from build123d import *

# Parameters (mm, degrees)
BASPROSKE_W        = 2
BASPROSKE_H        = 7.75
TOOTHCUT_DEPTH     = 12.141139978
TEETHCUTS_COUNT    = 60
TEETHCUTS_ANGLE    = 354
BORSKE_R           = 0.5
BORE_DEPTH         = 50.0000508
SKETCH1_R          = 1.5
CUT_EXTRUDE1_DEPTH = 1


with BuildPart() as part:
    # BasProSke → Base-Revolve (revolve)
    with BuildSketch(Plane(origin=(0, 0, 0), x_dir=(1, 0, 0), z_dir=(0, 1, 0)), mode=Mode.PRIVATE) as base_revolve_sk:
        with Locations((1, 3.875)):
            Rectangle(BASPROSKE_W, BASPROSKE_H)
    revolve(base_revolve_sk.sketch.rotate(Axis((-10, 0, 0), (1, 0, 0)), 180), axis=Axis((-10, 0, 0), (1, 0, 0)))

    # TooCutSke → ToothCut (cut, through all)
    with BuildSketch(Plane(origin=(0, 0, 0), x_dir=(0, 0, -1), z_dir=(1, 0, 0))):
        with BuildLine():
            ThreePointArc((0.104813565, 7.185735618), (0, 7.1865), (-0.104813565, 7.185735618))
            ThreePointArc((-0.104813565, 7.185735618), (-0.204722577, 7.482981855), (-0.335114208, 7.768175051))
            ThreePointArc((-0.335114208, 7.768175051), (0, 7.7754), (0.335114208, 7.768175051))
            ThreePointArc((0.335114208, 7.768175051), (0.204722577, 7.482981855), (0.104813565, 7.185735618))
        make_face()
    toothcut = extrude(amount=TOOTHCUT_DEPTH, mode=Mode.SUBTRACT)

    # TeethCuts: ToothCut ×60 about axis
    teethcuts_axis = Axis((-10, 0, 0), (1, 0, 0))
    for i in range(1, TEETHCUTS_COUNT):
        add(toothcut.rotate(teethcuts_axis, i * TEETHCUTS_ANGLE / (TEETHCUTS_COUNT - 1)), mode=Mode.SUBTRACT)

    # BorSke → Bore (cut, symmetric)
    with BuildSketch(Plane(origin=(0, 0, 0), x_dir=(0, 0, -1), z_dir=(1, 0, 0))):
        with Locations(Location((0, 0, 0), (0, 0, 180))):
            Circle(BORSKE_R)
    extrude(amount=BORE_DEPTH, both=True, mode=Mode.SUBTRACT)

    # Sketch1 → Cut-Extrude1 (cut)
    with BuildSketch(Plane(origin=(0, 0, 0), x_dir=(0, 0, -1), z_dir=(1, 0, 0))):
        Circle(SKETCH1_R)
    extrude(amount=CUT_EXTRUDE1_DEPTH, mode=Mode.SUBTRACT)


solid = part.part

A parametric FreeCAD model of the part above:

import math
import FreeCAD as App
import Part
import Sketcher
from FreeCAD import Vector
Q = App.Units.Quantity


def add_polygon(sketch, points):
    """Adds a closed chain of lines whose ends are joined by coincident constraints."""
    first, n = sketch.GeometryCount, len(points)
    for a, b in zip(points, points[1:] + points[:1]):
        sketch.addGeometry(Part.LineSegment(App.Vector(*a, 0), App.Vector(*b, 0)), False)
    for i in range(n):
        sketch.addConstraint(Sketcher.Constraint("Coincident", first + i, 2, first + (i + 1) % n, 1))

doc = App.newDocument("Part")
params = doc.addObject("Spreadsheet::Sheet", "Params")
for row, (alias, value) in enumerate([
    ("sketch1_width", "2 mm"),
    ("sketch1_height", "7.75 mm"),
    ("revolution_angle", "360 deg"),
    ("sketch2_radius", "3 mm"),
    ("sketch3_diameter", "1 mm"),
    ("pocket2_length", "100.000102 mm"),
    ("sketch4_diameter", "3 mm"),
    ("pocket3_length", "1 mm"),
], start=1):
    params.set(f"A{row}", alias)
    params.set(f"B{row}", "=" + value)
    params.setAlias(f"B{row}", alias)

body = doc.addObject("PartDesign::Body", "Body")

# Sketch on XZ plane
sketch1 = body.newObject("Sketcher::SketchObject", "Sketch")
sketch1.AttachmentSupport = (doc.getObject("XZ_Plane"), [""])
sketch1.MapMode = "FlatFace"
add_polygon(sketch1, [(0, -7.75), (0, 0), (2, 0), (2, -7.75)])  # lines 0-3
sketch1.addConstraint([
    Sketcher.Constraint("Vertical", 0),
    Sketcher.Constraint("Horizontal", 1),
    Sketcher.Constraint("Vertical", 2),
    Sketcher.Constraint("Horizontal", 3),
    Sketcher.Constraint("Coincident", 0, 2, -1, 1),
    Sketcher.Constraint("DistanceX", 1, 1, 1, 2, Q("2 mm")),
    Sketcher.Constraint("DistanceY", 0, 1, 0, 2, Q("7.75 mm")),
])
sketch1.setExpression("Constraints[9]", "Params.sketch1_width")
sketch1.setExpression("Constraints[10]", "Params.sketch1_height")
revolution = body.newObject("PartDesign::Revolution", "Revolution")
revolution.Profile = sketch1
revolution.ReferenceAxis = (sketch1, ["H_Axis"])
revolution.setExpression("Angle", "Params.revolution_angle")

# Sketch on YZ plane
sketch2 = body.newObject("Sketcher::SketchObject", "Sketch001")
sketch2.AttachmentSupport = (doc.getObject("YZ_Plane"), [""])
sketch2.MapMode = "FlatFace"
sketch2.addGeometry([
    Part.ArcOfCircle(Part.Circle(Vector(-0.000003, 0, 0), Vector(0, 0, 1), 7.186503), math.radians(-0.835676), math.radians(0.835676)),
    Part.ArcOfCircle(Part.Circle(Vector(6.379865, -2.994549, 0), Vector(0, 0, 1), 3), math.radians(62.433999), math.radians(74.41762)),
    Part.ArcOfCircle(Part.Circle(Vector(0, 0, 0), Vector(0, 0, 1), 7.7754), math.radians(-2.470173), math.radians(2.470173)),
    Part.ArcOfCircle(Part.Circle(Vector(6.379865, 2.994549, 0), Vector(0, 0, 1), 3), math.radians(-74.41762), math.radians(-62.433999)),
], False)
sketch2.addConstraint([
    Sketcher.Constraint("Coincident", 0, 1, 1, 2),
    Sketcher.Constraint("Coincident", 1, 1, 2, 1),
    Sketcher.Constraint("Coincident", 2, 2, 3, 2),
    Sketcher.Constraint("Coincident", 3, 1, 0, 2),
    Sketcher.Constraint("Coincident", 0, 3, -1, 1),
    Sketcher.Constraint("Coincident", 2, 3, -1, 1),
    Sketcher.Constraint("Equal", 1, 3),
    Sketcher.Constraint("Symmetric", 1, 3, 3, 3, -1),
    Sketcher.Constraint("Radius", 1, Q("3 mm")),
    Sketcher.Constraint("Radius", 2, Q("7.7754 mm")),
    Sketcher.Constraint("Radius", 0, Q("7.186503 mm")),
    Sketcher.Constraint("DistanceY", 1, 3, 3, 3, Q("5.989098 mm")),
    Sketcher.Constraint("DistanceY", 1, 1, 0, 1, Q("0.230301 mm")),
])
sketch2.setExpression("Constraints[8]", "Params.sketch2_radius")
pocket1 = body.newObject("PartDesign::Pocket", "Pocket")
pocket1.Profile = sketch2
pocket1.Type = "ThroughAll"
pocket1.Reversed = True
doc.recompute()

polarpattern = body.newObject("PartDesign::PolarPattern", "PolarPattern")
polarpattern.Originals = [pocket1]
polarpattern.Axis = (doc.getObject("X_Axis"), [""])
polarpattern.Angle = 360
polarpattern.Occurrences = 60
body.Tip = polarpattern

# Sketch on YZ plane
sketch3 = body.newObject("Sketcher::SketchObject", "Sketch002")
sketch3.AttachmentSupport = (doc.getObject("YZ_Plane"), [""])
sketch3.MapMode = "FlatFace"
sketch3.addGeometry(Part.Circle(Vector(0, 0, 0), Vector(0, 0, 1), 0.5), False)
sketch3.addConstraint([
    Sketcher.Constraint("Coincident", 0, 3, -1, 1),
    Sketcher.Constraint("Diameter", 0, Q("1 mm")),
])
sketch3.setExpression("Constraints[1]", "Params.sketch3_diameter")
pocket2 = body.newObject("PartDesign::Pocket", "Pocket001")
pocket2.Profile = sketch3
pocket2.setExpression("Length", "Params.pocket2_length")
pocket2.Midplane = True

# Sketch on YZ plane
sketch4 = body.newObject("Sketcher::SketchObject", "Sketch003")
sketch4.AttachmentSupport = (doc.getObject("YZ_Plane"), [""])
sketch4.MapMode = "FlatFace"
sketch4.addGeometry(Part.Circle(Vector(0, 0, 0), Vector(0, 0, 1), 1.5), False)
sketch4.addConstraint([
    Sketcher.Constraint("Coincident", 0, 3, -1, 1),
    Sketcher.Constraint("Diameter", 0, Q("3 mm")),
])
sketch4.setExpression("Constraints[1]", "Params.sketch4_diameter")
pocket3 = body.newObject("PartDesign::Pocket", "Pocket002")
pocket3.Profile = sketch4
pocket3.setExpression("Length", "Params.pocket3_length")
pocket3.Reversed = True

doc.recompute()
